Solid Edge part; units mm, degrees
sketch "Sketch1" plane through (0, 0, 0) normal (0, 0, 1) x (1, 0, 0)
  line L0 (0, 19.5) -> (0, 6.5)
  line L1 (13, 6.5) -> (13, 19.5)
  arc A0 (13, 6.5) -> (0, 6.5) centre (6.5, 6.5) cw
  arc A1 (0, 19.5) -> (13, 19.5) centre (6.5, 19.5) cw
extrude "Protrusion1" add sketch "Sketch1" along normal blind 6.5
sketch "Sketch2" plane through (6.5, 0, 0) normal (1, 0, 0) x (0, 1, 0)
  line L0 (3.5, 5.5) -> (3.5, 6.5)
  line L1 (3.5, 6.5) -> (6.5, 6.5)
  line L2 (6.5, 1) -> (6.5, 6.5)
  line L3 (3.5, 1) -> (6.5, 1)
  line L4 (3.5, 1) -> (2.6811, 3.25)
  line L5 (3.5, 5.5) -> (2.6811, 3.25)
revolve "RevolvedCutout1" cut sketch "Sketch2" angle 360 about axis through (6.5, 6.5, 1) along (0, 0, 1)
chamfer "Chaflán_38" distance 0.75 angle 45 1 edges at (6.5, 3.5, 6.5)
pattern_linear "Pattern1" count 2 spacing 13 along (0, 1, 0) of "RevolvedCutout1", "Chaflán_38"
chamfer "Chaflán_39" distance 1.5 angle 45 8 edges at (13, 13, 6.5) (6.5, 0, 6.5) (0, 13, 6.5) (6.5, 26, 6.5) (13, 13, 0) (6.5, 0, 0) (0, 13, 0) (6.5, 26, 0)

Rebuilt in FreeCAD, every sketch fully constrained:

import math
import FreeCAD as App
import Part
import Sketcher
Q = App.Units.Quantity


def edges_at(feature, points):
    """Names of the edges that pass closest to the given points."""
    edges = feature.Shape.Edges
    near = lambda p: min(range(len(edges)), key=lambda i: edges[i].distToShape(Part.Vertex(*p))[0])
    return sorted({f"Edge{near(p) + 1}" for p in points})


def add_polygon(sketch, points):
    """Adds a closed chain of lines whose ends are joined by coincident constraints."""
    first, n = sketch.GeometryCount, len(points)
    for a, b in zip(points, points[1:] + points[:1]):
        sketch.addGeometry(Part.LineSegment(App.Vector(*a, 0), App.Vector(*b, 0)), False)
    for i in range(n):
        sketch.addConstraint(Sketcher.Constraint("Coincident", first + i, 2, first + (i + 1) % n, 1))

doc = App.newDocument("Part")
body = doc.addObject("PartDesign::Body", "Body")

# Sketch on XY plane
sketch1 = body.newObject("Sketcher::SketchObject", "Sketch")
sketch1.AttachmentSupport = (doc.getObject("XY_Plane"), [""])
sketch1.MapMode = "FlatFace"
sketch1.addGeometry([
    Part.ArcOfCircle(Part.Circle(App.Vector(6.5, 19.5, 0), App.Vector(0, 0, 1), 6.5), math.radians(0), math.radians(180)),
    Part.LineSegment(App.Vector(0, 19.5, 0), App.Vector(0, 6.5, 0)),
    Part.ArcOfCircle(Part.Circle(App.Vector(6.5, 6.5, 0), App.Vector(0, 0, 1), 6.5), math.radians(180), math.radians(360)),
    Part.LineSegment(App.Vector(13, 6.5, 0), App.Vector(13, 19.5, 0)),
], False)
sketch1.addConstraint([
    Sketcher.Constraint("Tangent", 0, 2, 1, 1),
    Sketcher.Constraint("Tangent", 1, 2, 2, 1),
    Sketcher.Constraint("Tangent", 2, 2, 3, 1),
    Sketcher.Constraint("Tangent", 3, 2, 0, 1),
    Sketcher.Constraint("Vertical", 1),
    Sketcher.Constraint("Vertical", 3),
    Sketcher.Constraint("PointOnObject", 0, 2, -2),
    Sketcher.Constraint("Radius", 0, Q("6.5 mm")),
    Sketcher.Constraint("DistanceY", 1, 2, 1, 1, Q("13 mm")),
    Sketcher.Constraint("DistanceY", -1, 1, 0, 3, Q("19.5 mm")),
])
pad1 = body.newObject("PartDesign::Pad", "Pad")
pad1.Profile = sketch1
pad1.Length = 6.5

# Sketch on YZ plane
sketch2 = body.newObject("Sketcher::SketchObject", "Sketch001")
sketch2.AttachmentSupport = (doc.getObject("YZ_Plane"), [""])
sketch2.MapMode = "FlatFace"
sketch2.AttachmentOffset = App.Placement(App.Vector(0, 0, 6.5), App.Rotation())
add_polygon(sketch2, [(3.5, 6.5), (3.5, 5.5), (2.6811, 3.25), (3.5, 1), (6.5, 1), (6.5, 6.5)])  # lines 0-5
sketch2.addGeometry(Part.LineSegment(App.Vector(6.5, 1, 0), App.Vector(6.5, 6.5, 0)), True)  # axis
sketch2.addConstraint([
    Sketcher.Constraint("Vertical", 0),
    Sketcher.Constraint("Horizontal", 3),
    Sketcher.Constraint("Vertical", 4),
    Sketcher.Constraint("Horizontal", 5),
    Sketcher.Constraint("Vertical", 6),
    Sketcher.Constraint("Coincident", 6, 1, 3, 2),
    Sketcher.Constraint("Horizontal", 5, 2, 6, 2),
    Sketcher.Constraint("Vertical", 0, 2, 2, 2),
    Sketcher.Constraint("Equal", 1, 2),
    Sketcher.Constraint("DistanceX", 3, 1, 3, 2, Q("3 mm")),
    Sketcher.Constraint("DistanceY", 0, 2, 0, 1, Q("1 mm")),
    Sketcher.Constraint("Angle", 1, Q("-109.9993 deg")),
    Sketcher.Constraint("DistanceY", 4, 1, 4, 2, Q("5.5 mm")),
    Sketcher.Constraint("DistanceY", -1, 1, 2, 2, Q("1 mm")),
    Sketcher.Constraint("DistanceX", -1, 1, 0, 2, Q("3.5 mm")),
])
groove = body.newObject("PartDesign::Groove", "Groove")
groove.Profile = sketch2
groove.ReferenceAxis = (sketch2, ["Axis0"])
groove.Angle = 360
doc.recompute()

chamfer = body.newObject("PartDesign::Chamfer", "Chamfer")
chamfer.Base = (groove, edges_at(groove, [(6.5, 3.5, 6.5)]))
chamfer.Size = 0.75
doc.recompute()

linearpattern = body.newObject("PartDesign::LinearPattern", "LinearPattern")
linearpattern.Originals = [groove, chamfer]
linearpattern.Direction = (doc.getObject("Y_Axis"), [""])
linearpattern.Mode = "offset"
linearpattern.Offset = 13
linearpattern.Occurrences = 2
body.Tip = linearpattern
doc.recompute()

chamfer2 = body.newObject("PartDesign::Chamfer", "Chamfer001")
chamfer2.Base = (linearpattern, edges_at(linearpattern, [
    (13, 13, 6.5),
    (6.5, 0, 6.5),
    (0, 13, 6.5),
    (6.5, 26, 6.5),
    (13, 13, 0),
    (6.5, 0, 0),
    (0, 13, 0),
    (6.5, 26, 0),
]))
chamfer2.Size = 1.5

doc.recompute()
